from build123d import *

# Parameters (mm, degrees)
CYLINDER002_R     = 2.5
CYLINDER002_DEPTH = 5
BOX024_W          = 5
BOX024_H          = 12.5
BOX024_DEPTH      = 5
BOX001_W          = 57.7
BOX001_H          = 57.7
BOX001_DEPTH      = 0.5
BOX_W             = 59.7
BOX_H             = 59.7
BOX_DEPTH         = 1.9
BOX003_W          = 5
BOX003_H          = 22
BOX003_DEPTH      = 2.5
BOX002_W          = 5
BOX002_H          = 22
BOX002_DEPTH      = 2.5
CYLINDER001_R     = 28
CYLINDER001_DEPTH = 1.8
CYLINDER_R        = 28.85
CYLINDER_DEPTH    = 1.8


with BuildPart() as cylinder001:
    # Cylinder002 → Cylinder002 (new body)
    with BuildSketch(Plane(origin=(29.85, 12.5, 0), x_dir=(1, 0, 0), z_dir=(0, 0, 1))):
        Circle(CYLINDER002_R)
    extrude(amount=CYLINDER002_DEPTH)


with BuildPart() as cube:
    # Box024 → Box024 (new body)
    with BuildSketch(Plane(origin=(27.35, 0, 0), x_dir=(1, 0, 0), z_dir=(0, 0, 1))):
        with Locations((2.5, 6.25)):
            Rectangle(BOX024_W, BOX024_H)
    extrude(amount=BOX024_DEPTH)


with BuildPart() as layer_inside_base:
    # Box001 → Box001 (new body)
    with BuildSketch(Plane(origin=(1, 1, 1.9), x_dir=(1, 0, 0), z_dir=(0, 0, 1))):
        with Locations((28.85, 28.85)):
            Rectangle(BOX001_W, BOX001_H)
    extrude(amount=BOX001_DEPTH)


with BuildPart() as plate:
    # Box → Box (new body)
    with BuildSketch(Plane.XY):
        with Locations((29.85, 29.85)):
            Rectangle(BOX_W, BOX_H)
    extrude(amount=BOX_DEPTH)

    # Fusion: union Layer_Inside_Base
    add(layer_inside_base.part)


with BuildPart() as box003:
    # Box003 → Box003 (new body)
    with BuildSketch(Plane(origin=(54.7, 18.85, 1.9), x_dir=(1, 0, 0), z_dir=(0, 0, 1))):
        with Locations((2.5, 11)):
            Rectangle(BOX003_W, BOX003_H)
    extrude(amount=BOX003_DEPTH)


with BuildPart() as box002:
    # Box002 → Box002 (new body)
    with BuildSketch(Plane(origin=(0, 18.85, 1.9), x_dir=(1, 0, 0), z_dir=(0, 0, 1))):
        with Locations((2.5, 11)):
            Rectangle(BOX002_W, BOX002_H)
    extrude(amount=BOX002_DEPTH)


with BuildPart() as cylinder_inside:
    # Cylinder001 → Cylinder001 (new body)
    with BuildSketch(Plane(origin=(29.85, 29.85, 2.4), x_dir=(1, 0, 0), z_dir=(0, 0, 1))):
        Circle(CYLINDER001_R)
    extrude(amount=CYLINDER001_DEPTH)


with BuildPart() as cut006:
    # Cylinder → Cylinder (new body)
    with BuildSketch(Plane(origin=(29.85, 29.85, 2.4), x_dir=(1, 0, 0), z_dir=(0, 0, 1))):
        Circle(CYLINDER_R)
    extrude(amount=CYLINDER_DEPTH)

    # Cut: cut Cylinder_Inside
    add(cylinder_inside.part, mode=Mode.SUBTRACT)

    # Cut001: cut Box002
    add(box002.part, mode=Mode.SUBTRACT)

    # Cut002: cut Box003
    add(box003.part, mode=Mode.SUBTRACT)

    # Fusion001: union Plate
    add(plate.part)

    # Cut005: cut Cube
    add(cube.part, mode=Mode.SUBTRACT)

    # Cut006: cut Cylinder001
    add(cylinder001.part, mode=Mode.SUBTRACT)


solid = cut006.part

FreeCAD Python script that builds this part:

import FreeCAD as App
import Part
import Sketcher
Q = App.Units.Quantity

doc = App.newDocument("Part")
params = doc.addObject("Spreadsheet::Sheet", "Params")
for row, (alias, value) in enumerate([
    ("sketch1_diameter", "5 mm"),
    ("pad1_length", "5 mm"),
    ("sketch2_width", "5 mm"),
    ("sketch2_height", "12.5 mm"),
    ("pad2_length", "5 mm"),
    ("sketch3_width", "57.7 mm"),
    ("pad3_length", "0.5 mm"),
    ("sketch4_width", "59.7 mm"),
    ("pad4_length", "1.9 mm"),
    ("sketch5_width", "5 mm"),
    ("sketch5_height", "22 mm"),
    ("pad5_length", "2.5 mm"),
    ("sketch6_width", "5 mm"),
    ("sketch6_height", "22 mm"),
    ("pad6_length", "2.5 mm"),
    ("sketch7_diameter", "56 mm"),
    ("pad7_length", "1.8 mm"),
    ("sketch8_diameter", "57.7 mm"),
    ("pad8_length", "1.8 mm"),
], start=1):
    params.set(f"A{row}", alias)
    params.set(f"B{row}", "=" + value)
    params.setAlias(f"B{row}", alias)

body = doc.addObject("PartDesign::Body", "Body")

# Sketch on XY plane
sketch1 = doc.addObject("Sketcher::SketchObject", "Sketch")
body.addObject(sketch1)
sketch1.AttachmentSupport = (doc.XY_Plane, [""])
sketch1.MapMode = "FlatFace"
sketch1.addGeometry(Part.Circle(App.Vector(29.9, 12.5, 0), App.Vector(0, 0, 1), 2.5), False)
sketch1.addConstraint(Sketcher.Constraint("Diameter", 0, Q("5 mm")))
sketch1.addConstraint(Sketcher.Constraint("DistanceY", -1, 1, 0, 3, Q("12.5 mm")))
sketch1.addConstraint(Sketcher.Constraint("DistanceX", -1, 1, 0, 3, Q("29.85 mm")))
sketch1.setExpression("Constraints[0]", "Params.sketch1_diameter")
pad1 = doc.addObject("PartDesign::Pad", "Pad")
body.addObject(pad1)
pad1.Profile = sketch1
pad1.setExpression("Length", "Params.pad1_length")
body2 = doc.addObject("PartDesign::Body", "Body001")

# Sketch on XY plane
sketch2 = doc.addObject("Sketcher::SketchObject", "Sketch001")
body2.addObject(sketch2)
sketch2.AttachmentSupport = (doc.getObject("XY_Plane001"), [""])
sketch2.MapMode = "FlatFace"
sketch2.addGeometry(Part.LineSegment(App.Vector(27, 12, 0), App.Vector(27, 0, 0)), False)
sketch2.addGeometry(Part.LineSegment(App.Vector(27, 0, 0), App.Vector(32, 0, 0)), False)
sketch2.addGeometry(Part.LineSegment(App.Vector(32, 0, 0), App.Vector(32, 12, 0)), False)
sketch2.addGeometry(Part.LineSegment(App.Vector(32, 12, 0), App.Vector(27, 12, 0)), False)
sketch2.addConstraint(Sketcher.Constraint("Coincident", 0, 2, 1, 1))
sketch2.addConstraint(Sketcher.Constraint("Coincident", 1, 2, 2, 1))
sketch2.addConstraint(Sketcher.Constraint("Coincident", 2, 2, 3, 1))
sketch2.addConstraint(Sketcher.Constraint("Coincident", 3, 2, 0, 1))
sketch2.addConstraint(Sketcher.Constraint("Vertical", 0))
sketch2.addConstraint(Sketcher.Constraint("Horizontal", 1))
sketch2.addConstraint(Sketcher.Constraint("Vertical", 2))
sketch2.addConstraint(Sketcher.Constraint("Horizontal", 3))
sketch2.addConstraint(Sketcher.Constraint("PointOnObject", 0, 2, -1))
sketch2.addConstraint(Sketcher.Constraint("DistanceX", 1, 1, 1, 2, Q("5 mm")))
sketch2.addConstraint(Sketcher.Constraint("DistanceY", 0, 2, 0, 1, Q("12.5 mm")))
sketch2.addConstraint(Sketcher.Constraint("DistanceX", -1, 1, 0, 2, Q("27.35 mm")))
sketch2.setExpression("Constraints[9]", "Params.sketch2_width")
sketch2.setExpression("Constraints[10]", "Params.sketch2_height")
pad2 = doc.addObject("PartDesign::Pad", "Pad001")
body2.addObject(pad2)
pad2.Profile = sketch2
pad2.setExpression("Length", "Params.pad2_length")
body3 = doc.addObject("PartDesign::Body", "Body002")

# Sketch on XY plane
sketch3 = doc.addObject("Sketcher::SketchObject", "Sketch002")
body3.addObject(sketch3)
sketch3.AttachmentSupport = (doc.getObject("XY_Plane002"), [""])
sketch3.MapMode = "FlatFace"
sketch3.AttachmentOffset = App.Placement(App.Vector(0, 0, 1.9), App.Rotation())
sketch3.addGeometry(Part.LineSegment(App.Vector(1, 59, 0), App.Vector(1, 1, 0)), False)
sketch3.addGeometry(Part.LineSegment(App.Vector(1, 1, 0), App.Vector(59, 1, 0)), False)
sketch3.addGeometry(Part.LineSegment(App.Vector(59, 1, 0), App.Vector(59, 59, 0)), False)
sketch3.addGeometry(Part.LineSegment(App.Vector(59, 59, 0), App.Vector(1, 59, 0)), False)
sketch3.addConstraint(Sketcher.Constraint("Coincident", 0, 2, 1, 1))
sketch3.addConstraint(Sketcher.Constraint("Coincident", 1, 2, 2, 1))
sketch3.addConstraint(Sketcher.Constraint("Coincident", 2, 2, 3, 1))
sketch3.addConstraint(Sketcher.Constraint("Coincident", 3, 2, 0, 1))
sketch3.addConstraint(Sketcher.Constraint("Vertical", 0))
sketch3.addConstraint(Sketcher.Constraint("Horizontal", 1))
sketch3.addConstraint(Sketcher.Constraint("Vertical", 2))
sketch3.addConstraint(Sketcher.Constraint("Horizontal", 3))
sketch3.addConstraint(Sketcher.Constraint("Equal", 3, 0))
sketch3.addConstraint(Sketcher.Constraint("DistanceX", 1, 1, 1, 2, Q("57.7 mm")))
sketch3.addConstraint(Sketcher.Constraint("DistanceX", -1, 1, 0, 2, Q("1 mm")))
sketch3.addConstraint(Sketcher.Constraint("DistanceY", -1, 1, 0, 2, Q("1 mm")))
sketch3.setExpression("Constraints[9]", "Params.sketch3_width")
pad3 = doc.addObject("PartDesign::Pad", "Pad002")
body3.addObject(pad3)
pad3.Profile = sketch3
pad3.setExpression("Length", "Params.pad3_length")
body4 = doc.addObject("PartDesign::Body", "Body003")

# Sketch on XY plane
sketch4 = doc.addObject("Sketcher::SketchObject", "Sketch003")
body4.addObject(sketch4)
sketch4.AttachmentSupport = (doc.getObject("XY_Plane003"), [""])
sketch4.MapMode = "FlatFace"
sketch4.addGeometry(Part.LineSegment(App.Vector(0, 60, 0), App.Vector(0, 0, 0)), False)
sketch4.addGeometry(Part.LineSegment(App.Vector(0, 0, 0), App.Vector(60, 0, 0)), False)
sketch4.addGeometry(Part.LineSegment(App.Vector(60, 0, 0), App.Vector(60, 60, 0)), False)
sketch4.addGeometry(Part.LineSegment(App.Vector(60, 60, 0), App.Vector(0, 60, 0)), False)
sketch4.addConstraint(Sketcher.Constraint("Coincident", 0, 2, 1, 1))
sketch4.addConstraint(Sketcher.Constraint("Coincident", 1, 2, 2, 1))
sketch4.addConstraint(Sketcher.Constraint("Coincident", 2, 2, 3, 1))
sketch4.addConstraint(Sketcher.Constraint("Coincident", 3, 2, 0, 1))
sketch4.addConstraint(Sketcher.Constraint("Vertical", 0))
sketch4.addConstraint(Sketcher.Constraint("Horizontal", 1))
sketch4.addConstraint(Sketcher.Constraint("Vertical", 2))
sketch4.addConstraint(Sketcher.Constraint("Horizontal", 3))
sketch4.addConstraint(Sketcher.Constraint("Coincident", 0, 2, -1, 1))
sketch4.addConstraint(Sketcher.Constraint("Equal", 3, 0))
sketch4.addConstraint(Sketcher.Constraint("DistanceX", 1, 1, 1, 2, Q("59.7 mm")))
sketch4.setExpression("Constraints[10]", "Params.sketch4_width")
pad4 = doc.addObject("PartDesign::Pad", "Pad003")
body4.addObject(pad4)
pad4.Profile = sketch4
pad4.setExpression("Length", "Params.pad4_length")
doc.recompute()

boolean = doc.addObject("PartDesign::Boolean", "Boolean")
body4.addObject(boolean)
boolean.Type = "Fuse"
boolean.addObjects([body3])
body5 = doc.addObject("PartDesign::Body", "Body004")

# Sketch on XY plane
sketch5 = doc.addObject("Sketcher::SketchObject", "Sketch004")
body5.addObject(sketch5)
sketch5.AttachmentSupport = (doc.getObject("XY_Plane004"), [""])
sketch5.MapMode = "FlatFace"
sketch5.AttachmentOffset = App.Placement(App.Vector(0, 0, 1.9), App.Rotation())
sketch5.addGeometry(Part.LineSegment(App.Vector(55, 41, 0), App.Vector(55, 19, 0)), False)
sketch5.addGeometry(Part.LineSegment(App.Vector(55, 19, 0), App.Vector(60, 19, 0)), False)
sketch5.addGeometry(Part.LineSegment(App.Vector(60, 19, 0), App.Vector(60, 41, 0)), False)
sketch5.addGeometry(Part.LineSegment(App.Vector(60, 41, 0), App.Vector(55, 41, 0)), False)
sketch5.addConstraint(Sketcher.Constraint("Coincident", 0, 2, 1, 1))
sketch5.addConstraint(Sketcher.Constraint("Coincident", 1, 2, 2, 1))
sketch5.addConstraint(Sketcher.Constraint("Coincident", 2, 2, 3, 1))
sketch5.addConstraint(Sketcher.Constraint("Coincident", 3, 2, 0, 1))
sketch5.addConstraint(Sketcher.Constraint("Vertical", 0))
sketch5.addConstraint(Sketcher.Constraint("Horizontal", 1))
sketch5.addConstraint(Sketcher.Constraint("Vertical", 2))
sketch5.addConstraint(Sketcher.Constraint("Horizontal", 3))
sketch5.addConstraint(Sketcher.Constraint("DistanceX", 1, 1, 1, 2, Q("5 mm")))
sketch5.addConstraint(Sketcher.Constraint("DistanceY", 0, 2, 0, 1, Q("22 mm")))
sketch5.addConstraint(Sketcher.Constraint("DistanceX", -1, 1, 0, 2, Q("54.7 mm")))
sketch5.addConstraint(Sketcher.Constraint("DistanceY", -1, 1, 0, 2, Q("18.85 mm")))
sketch5.setExpression("Constraints[8]", "Params.sketch5_width")
sketch5.setExpression("Constraints[9]", "Params.sketch5_height")
pad5 = doc.addObject("PartDesign::Pad", "Pad004")
body5.addObject(pad5)
pad5.Profile = sketch5
pad5.setExpression("Length", "Params.pad5_length")
body6 = doc.addObject("PartDesign::Body", "Body005")

# Sketch on XY plane
sketch6 = doc.addObject("Sketcher::SketchObject", "Sketch005")
body6.addObject(sketch6)
sketch6.AttachmentSupport = (doc.getObject("XY_Plane005"), [""])
sketch6.MapMode = "FlatFace"
sketch6.AttachmentOffset = App.Placement(App.Vector(0, 0, 1.9), App.Rotation())
sketch6.addGeometry(Part.LineSegment(App.Vector(0, 41, 0), App.Vector(0, 19, 0)), False)
sketch6.addGeometry(Part.LineSegment(App.Vector(0, 19, 0), App.Vector(5, 19, 0)), False)
sketch6.addGeometry(Part.LineSegment(App.Vector(5, 19, 0), App.Vector(5, 41, 0)), False)
sketch6.addGeometry(Part.LineSegment(App.Vector(5, 41, 0), App.Vector(0, 41, 0)), False)
sketch6.addConstraint(Sketcher.Constraint("Coincident", 0, 2, 1, 1))
sketch6.addConstraint(Sketcher.Constraint("Coincident", 1, 2, 2, 1))
sketch6.addConstraint(Sketcher.Constraint("Coincident", 2, 2, 3, 1))
sketch6.addConstraint(Sketcher.Constraint("Coincident", 3, 2, 0, 1))
sketch6.addConstraint(Sketcher.Constraint("Vertical", 0))
sketch6.addConstraint(Sketcher.Constraint("Horizontal", 1))
sketch6.addConstraint(Sketcher.Constraint("Vertical", 2))
sketch6.addConstraint(Sketcher.Constraint("Horizontal", 3))
sketch6.addConstraint(Sketcher.Constraint("PointOnObject", 0, 2, -2))
sketch6.addConstraint(Sketcher.Constraint("DistanceX", 1, 1, 1, 2, Q("5 mm")))
sketch6.addConstraint(Sketcher.Constraint("DistanceY", 0, 2, 0, 1, Q("22 mm")))
sketch6.addConstraint(Sketcher.Constraint("DistanceY", -1, 1, 0, 2, Q("18.85 mm")))
sketch6.setExpression("Constraints[9]", "Params.sketch6_width")
sketch6.setExpression("Constraints[10]", "Params.sketch6_height")
pad6 = doc.addObject("PartDesign::Pad", "Pad005")
body6.addObject(pad6)
pad6.Profile = sketch6
pad6.setExpression("Length", "Params.pad6_length")
body7 = doc.addObject("PartDesign::Body", "Body006")

# Sketch on XY plane
sketch7 = doc.addObject("Sketcher::SketchObject", "Sketch006")
body7.addObject(sketch7)
sketch7.AttachmentSupport = (doc.getObject("XY_Plane006"), [""])
sketch7.MapMode = "FlatFace"
sketch7.AttachmentOffset = App.Placement(App.Vector(0, 0, 2.4), App.Rotation())
sketch7.addGeometry(Part.Circle(App.Vector(30, 30, 0), App.Vector(0, 0, 1), 28), False)
sketch7.addConstraint(Sketcher.Constraint("Diameter", 0, Q("56 mm")))
sketch7.addConstraint(Sketcher.Constraint("DistanceX", -1, 1, 0, 3, Q("29.85 mm")))
sketch7.addConstraint(Sketcher.Constraint("DistanceY", -1, 1, 0, 3, Q("29.85 mm")))
sketch7.setExpression("Constraints[0]", "Params.sketch7_diameter")
pad7 = doc.addObject("PartDesign::Pad", "Pad006")
body7.addObject(pad7)
pad7.Profile = sketch7
pad7.setExpression("Length", "Params.pad7_length")
body8 = doc.addObject("PartDesign::Body", "Body007")
body8.AllowCompound = True

# Sketch on XY plane
sketch8 = doc.addObject("Sketcher::SketchObject", "Sketch007")
body8.addObject(sketch8)
sketch8.AttachmentSupport = (doc.getObject("XY_Plane007"), [""])
sketch8.MapMode = "FlatFace"
sketch8.AttachmentOffset = App.Placement(App.Vector(0, 0, 2.4), App.Rotation())
sketch8.addGeometry(Part.Circle(App.Vector(30, 30, 0), App.Vector(0, 0, 1), 29), False)
sketch8.addConstraint(Sketcher.Constraint("Diameter", 0, Q("57.7 mm")))
sketch8.addConstraint(Sketcher.Constraint("DistanceX", -1, 1, 0, 3, Q("29.85 mm")))
sketch8.addConstraint(Sketcher.Constraint("DistanceY", -1, 1, 0, 3, Q("29.85 mm")))
sketch8.setExpression("Constraints[0]", "Params.sketch8_diameter")
pad8 = doc.addObject("PartDesign::Pad", "Pad007")
body8.addObject(pad8)
pad8.Profile = sketch8
pad8.setExpression("Length", "Params.pad8_length")
doc.recompute()

boolean2 = doc.addObject("PartDesign::Boolean", "Boolean001")
body8.addObject(boolean2)
boolean2.Type = "Cut"
boolean2.addObjects([body7])
doc.recompute()

boolean3 = doc.addObject("PartDesign::Boolean", "Boolean002")
body8.addObject(boolean3)
boolean3.Type = "Cut"
boolean3.addObjects([body6])
doc.recompute()

boolean4 = doc.addObject("PartDesign::Boolean", "Boolean003")
body8.addObject(boolean4)
boolean4.Type = "Cut"
boolean4.addObjects([body5])
doc.recompute()

boolean5 = doc.addObject("PartDesign::Boolean", "Boolean004")
body8.addObject(boolean5)
boolean5.Type = "Fuse"
boolean5.addObjects([body4])
doc.recompute()

boolean6 = doc.addObject("PartDesign::Boolean", "Boolean005")
body8.addObject(boolean6)
boolean6.Type = "Cut"
boolean6.addObjects([body2])
doc.recompute()

boolean7 = doc.addObject("PartDesign::Boolean", "Boolean006")
body8.addObject(boolean7)
boolean7.Type = "Cut"
boolean7.addObjects([body])

doc.recompute()
